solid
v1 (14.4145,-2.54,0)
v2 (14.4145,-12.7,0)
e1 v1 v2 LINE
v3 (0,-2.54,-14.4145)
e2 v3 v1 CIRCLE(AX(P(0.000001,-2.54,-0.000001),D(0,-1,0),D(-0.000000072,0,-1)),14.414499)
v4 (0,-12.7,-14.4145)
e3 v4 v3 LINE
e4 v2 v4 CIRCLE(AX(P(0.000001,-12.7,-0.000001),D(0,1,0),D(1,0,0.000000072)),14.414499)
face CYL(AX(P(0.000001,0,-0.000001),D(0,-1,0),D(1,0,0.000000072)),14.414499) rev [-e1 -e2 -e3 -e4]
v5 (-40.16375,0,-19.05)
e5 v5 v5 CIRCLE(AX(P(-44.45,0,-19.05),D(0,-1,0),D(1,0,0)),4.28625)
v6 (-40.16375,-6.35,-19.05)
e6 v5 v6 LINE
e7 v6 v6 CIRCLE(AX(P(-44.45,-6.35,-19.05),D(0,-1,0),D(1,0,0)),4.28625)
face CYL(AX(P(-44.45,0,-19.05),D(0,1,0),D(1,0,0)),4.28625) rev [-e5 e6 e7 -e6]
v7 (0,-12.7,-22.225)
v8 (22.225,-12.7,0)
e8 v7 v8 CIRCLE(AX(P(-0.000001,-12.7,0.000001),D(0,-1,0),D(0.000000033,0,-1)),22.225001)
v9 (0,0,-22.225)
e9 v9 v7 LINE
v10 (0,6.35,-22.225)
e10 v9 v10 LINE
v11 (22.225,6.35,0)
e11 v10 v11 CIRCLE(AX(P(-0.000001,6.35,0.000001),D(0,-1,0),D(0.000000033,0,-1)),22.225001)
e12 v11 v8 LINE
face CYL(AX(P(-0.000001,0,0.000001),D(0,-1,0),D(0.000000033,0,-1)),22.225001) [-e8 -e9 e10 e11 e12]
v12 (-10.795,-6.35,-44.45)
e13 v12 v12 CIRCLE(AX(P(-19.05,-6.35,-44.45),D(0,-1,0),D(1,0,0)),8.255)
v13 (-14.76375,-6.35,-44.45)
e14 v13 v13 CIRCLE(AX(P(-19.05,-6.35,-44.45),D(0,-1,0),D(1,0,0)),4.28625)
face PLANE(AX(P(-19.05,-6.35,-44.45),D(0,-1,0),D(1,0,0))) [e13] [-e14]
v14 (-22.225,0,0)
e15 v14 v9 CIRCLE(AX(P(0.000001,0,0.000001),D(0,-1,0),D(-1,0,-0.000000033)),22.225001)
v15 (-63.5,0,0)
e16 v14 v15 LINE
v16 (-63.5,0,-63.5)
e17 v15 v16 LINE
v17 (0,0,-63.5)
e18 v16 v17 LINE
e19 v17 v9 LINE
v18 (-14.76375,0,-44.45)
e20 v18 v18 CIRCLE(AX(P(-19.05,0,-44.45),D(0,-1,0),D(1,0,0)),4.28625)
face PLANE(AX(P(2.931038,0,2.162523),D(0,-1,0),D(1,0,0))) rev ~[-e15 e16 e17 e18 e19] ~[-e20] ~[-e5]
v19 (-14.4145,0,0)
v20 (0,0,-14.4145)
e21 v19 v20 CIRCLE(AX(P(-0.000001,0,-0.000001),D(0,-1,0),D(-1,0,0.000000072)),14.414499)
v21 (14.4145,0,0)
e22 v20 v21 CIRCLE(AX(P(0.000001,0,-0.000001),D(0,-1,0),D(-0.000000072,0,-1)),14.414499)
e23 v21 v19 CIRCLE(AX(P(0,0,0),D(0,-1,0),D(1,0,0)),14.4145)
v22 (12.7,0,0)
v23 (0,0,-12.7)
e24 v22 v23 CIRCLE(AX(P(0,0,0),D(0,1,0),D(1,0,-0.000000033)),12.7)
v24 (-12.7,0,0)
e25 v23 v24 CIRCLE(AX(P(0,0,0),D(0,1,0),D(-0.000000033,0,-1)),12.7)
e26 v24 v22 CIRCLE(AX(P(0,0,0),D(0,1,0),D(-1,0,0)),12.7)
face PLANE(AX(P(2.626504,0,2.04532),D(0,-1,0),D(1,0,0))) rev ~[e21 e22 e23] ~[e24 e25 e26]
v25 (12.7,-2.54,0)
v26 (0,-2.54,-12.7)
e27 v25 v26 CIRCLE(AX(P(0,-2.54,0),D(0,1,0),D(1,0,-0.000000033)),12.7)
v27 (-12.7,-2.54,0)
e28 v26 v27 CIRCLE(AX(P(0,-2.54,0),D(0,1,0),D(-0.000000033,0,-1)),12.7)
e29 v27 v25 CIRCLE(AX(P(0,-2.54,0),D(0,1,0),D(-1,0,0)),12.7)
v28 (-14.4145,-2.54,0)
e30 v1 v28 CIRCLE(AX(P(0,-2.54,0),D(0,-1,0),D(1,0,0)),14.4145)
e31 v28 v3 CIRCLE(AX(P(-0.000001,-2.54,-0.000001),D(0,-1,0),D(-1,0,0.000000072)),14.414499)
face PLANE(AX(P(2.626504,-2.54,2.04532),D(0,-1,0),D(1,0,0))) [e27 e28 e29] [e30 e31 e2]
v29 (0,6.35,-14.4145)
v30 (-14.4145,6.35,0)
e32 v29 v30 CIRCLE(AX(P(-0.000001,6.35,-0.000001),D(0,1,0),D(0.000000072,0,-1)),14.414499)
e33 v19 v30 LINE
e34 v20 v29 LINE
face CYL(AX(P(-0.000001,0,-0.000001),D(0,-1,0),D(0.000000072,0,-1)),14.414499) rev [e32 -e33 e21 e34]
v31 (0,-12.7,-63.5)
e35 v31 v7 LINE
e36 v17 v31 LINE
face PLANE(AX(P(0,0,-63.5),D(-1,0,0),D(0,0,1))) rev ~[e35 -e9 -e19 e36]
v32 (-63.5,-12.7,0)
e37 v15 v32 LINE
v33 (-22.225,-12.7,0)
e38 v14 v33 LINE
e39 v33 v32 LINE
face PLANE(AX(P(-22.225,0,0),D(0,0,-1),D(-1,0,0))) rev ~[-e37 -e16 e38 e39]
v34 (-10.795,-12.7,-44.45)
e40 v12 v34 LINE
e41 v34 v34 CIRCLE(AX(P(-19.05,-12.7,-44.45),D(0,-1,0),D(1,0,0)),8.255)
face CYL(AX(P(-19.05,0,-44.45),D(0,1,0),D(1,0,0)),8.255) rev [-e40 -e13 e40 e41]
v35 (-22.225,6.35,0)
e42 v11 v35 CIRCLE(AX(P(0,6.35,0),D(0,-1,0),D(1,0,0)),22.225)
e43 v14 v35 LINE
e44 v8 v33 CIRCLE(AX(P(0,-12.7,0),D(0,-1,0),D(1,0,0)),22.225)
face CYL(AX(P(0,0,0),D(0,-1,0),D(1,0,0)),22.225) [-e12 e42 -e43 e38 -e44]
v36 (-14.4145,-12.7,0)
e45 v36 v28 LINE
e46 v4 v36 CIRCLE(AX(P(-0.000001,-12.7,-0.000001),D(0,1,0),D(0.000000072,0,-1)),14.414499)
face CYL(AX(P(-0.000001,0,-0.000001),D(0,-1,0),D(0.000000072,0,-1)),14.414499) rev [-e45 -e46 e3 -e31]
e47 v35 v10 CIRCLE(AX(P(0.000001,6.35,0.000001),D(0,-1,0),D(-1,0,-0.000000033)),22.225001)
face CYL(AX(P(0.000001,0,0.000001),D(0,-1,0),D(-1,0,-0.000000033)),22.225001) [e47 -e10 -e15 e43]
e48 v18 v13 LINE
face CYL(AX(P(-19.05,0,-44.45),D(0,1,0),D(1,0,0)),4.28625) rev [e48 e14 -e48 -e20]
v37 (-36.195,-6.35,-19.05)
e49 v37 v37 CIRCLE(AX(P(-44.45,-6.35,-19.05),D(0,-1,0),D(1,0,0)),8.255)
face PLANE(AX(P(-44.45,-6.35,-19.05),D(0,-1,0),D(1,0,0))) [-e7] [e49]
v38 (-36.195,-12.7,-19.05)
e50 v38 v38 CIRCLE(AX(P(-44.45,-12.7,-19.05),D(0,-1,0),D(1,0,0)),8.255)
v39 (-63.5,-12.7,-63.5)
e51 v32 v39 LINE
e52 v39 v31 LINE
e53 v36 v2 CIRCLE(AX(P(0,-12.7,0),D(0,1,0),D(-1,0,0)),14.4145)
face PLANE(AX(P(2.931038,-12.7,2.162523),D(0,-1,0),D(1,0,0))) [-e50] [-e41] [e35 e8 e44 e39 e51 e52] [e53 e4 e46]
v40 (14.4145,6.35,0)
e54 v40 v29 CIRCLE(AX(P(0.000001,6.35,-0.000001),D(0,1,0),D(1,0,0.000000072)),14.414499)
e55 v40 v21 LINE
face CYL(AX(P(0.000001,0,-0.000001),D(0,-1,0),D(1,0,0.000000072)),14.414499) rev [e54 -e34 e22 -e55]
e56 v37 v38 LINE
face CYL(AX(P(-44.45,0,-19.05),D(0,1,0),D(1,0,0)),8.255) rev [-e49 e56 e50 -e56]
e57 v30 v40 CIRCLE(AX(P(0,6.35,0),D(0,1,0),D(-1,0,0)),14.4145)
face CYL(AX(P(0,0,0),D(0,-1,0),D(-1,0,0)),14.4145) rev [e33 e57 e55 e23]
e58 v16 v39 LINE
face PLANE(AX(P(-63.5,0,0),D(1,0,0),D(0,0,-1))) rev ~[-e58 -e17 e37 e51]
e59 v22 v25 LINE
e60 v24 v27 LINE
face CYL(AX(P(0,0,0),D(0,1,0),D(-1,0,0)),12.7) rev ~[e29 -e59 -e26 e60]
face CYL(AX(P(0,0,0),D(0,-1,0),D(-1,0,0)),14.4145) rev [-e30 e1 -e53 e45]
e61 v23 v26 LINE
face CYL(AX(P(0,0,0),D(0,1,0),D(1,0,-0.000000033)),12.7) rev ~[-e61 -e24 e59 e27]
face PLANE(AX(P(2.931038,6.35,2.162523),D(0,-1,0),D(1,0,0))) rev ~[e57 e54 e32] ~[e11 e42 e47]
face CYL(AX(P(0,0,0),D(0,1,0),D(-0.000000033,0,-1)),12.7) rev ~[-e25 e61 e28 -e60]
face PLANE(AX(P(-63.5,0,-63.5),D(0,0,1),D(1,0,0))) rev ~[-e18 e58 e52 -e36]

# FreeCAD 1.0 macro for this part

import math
import FreeCAD as App
import Part
import Sketcher

V = App.Vector
Q = App.Units.Quantity

doc = App.newDocument("Part")
body = doc.addObject("PartDesign::Body", "Body")

# Sketch on XZ plane
sketch1 = body.newObject("Sketcher::SketchObject", "Sketch")
sketch1.AttachmentSupport = (doc.getObject("XZ_Plane"), [""])
sketch1.MapMode = "FlatFace"
sketch1.addGeometry(Part.ArcOfCircle(Part.Circle(V(0, 0, 0), V(0, 0, 1), 22), math.radians(-180), math.radians(-90)), False)
sketch1.addGeometry(Part.LineSegment(V(-22, 0, 0), V(-64, 0, 0)), False)
sketch1.addGeometry(Part.LineSegment(V(-64, 0, 0), V(-64, -64, 0)), False)
sketch1.addGeometry(Part.LineSegment(V(-64, -64, 0), V(0, -64, 0)), False)
sketch1.addGeometry(Part.LineSegment(V(0, -64, 0), V(0, -22, 0)), False)
sketch1.addGeometry(Part.Circle(V(-19, -44, 0), V(0, 0, 1), 8), False)
sketch1.addGeometry(Part.Circle(V(-44, -19, 0), V(0, 0, 1), 8), False)
sketch1.addConstraint(Sketcher.Constraint("Coincident", 0, 1, 1, 1))
sketch1.addConstraint(Sketcher.Constraint("Coincident", 1, 2, 2, 1))
sketch1.addConstraint(Sketcher.Constraint("Coincident", 2, 2, 3, 1))
sketch1.addConstraint(Sketcher.Constraint("Coincident", 3, 2, 4, 1))
sketch1.addConstraint(Sketcher.Constraint("Coincident", 4, 2, 0, 2))
sketch1.addConstraint(Sketcher.Constraint("Horizontal", 1))
sketch1.addConstraint(Sketcher.Constraint("Vertical", 2))
sketch1.addConstraint(Sketcher.Constraint("Horizontal", 3))
sketch1.addConstraint(Sketcher.Constraint("Vertical", 4))
sketch1.addConstraint(Sketcher.Constraint("Coincident", 0, 3, -1, 1))
sketch1.addConstraint(Sketcher.Constraint("Equal", 5, 6))
sketch1.addConstraint(Sketcher.Constraint("PointOnObject", 0, 1, -1))
sketch1.addConstraint(Sketcher.Constraint("PointOnObject", 3, 2, -2))
sketch1.addConstraint(Sketcher.Constraint("Equal", 3, 2))
sketch1.addConstraint(Sketcher.Constraint("Diameter", 5, Q("0.65 in")))
sketch1.addConstraint(Sketcher.Constraint("DistanceX", 3, 1, 3, 2, Q("2.5 in")))
sketch1.addConstraint(Sketcher.Constraint("Radius", 0, Q("0.875 in")))
sketch1.addConstraint(Sketcher.Constraint("DistanceX", 6, 3, 5, 3, Q("1 in")))
sketch1.addConstraint(Sketcher.Constraint("DistanceY", 5, 3, 6, 3, Q("1 in")))
sketch1.addConstraint(Sketcher.Constraint("DistanceX", 5, 3, -1, 1, Q("0.75 in")))
sketch1.addConstraint(Sketcher.Constraint("DistanceY", 5, 3, -1, 1, Q("1.75 in")))
pad1 = body.newObject("PartDesign::Pad", "Pad")
pad1.Profile = sketch1
pad1.Length = Q("0.5 in")

# Sketch on XZ plane
sketch2 = body.newObject("Sketcher::SketchObject", "Sketch001")
sketch2.AttachmentSupport = (doc.getObject("XZ_Plane"), [""])
sketch2.MapMode = "FlatFace"
sketch2.addGeometry(Part.Circle(V(-44.5, -19.1, 0), V(0, 0, 1), 8.3), False)
sketch2.addGeometry(Part.Circle(V(-44.5, -19.1, 0), V(0, 0, 1), 4.3), False)
sketch2.addGeometry(Part.Circle(V(-19.1, -44.5, 0), V(0, 0, 1), 8.3), False)
sketch2.addGeometry(Part.Circle(V(-19.1, -44.5, 0), V(0, 0, 1), 4.3), False)
sketch2.addConstraint(Sketcher.Constraint("Coincident", 1, 3, 0, 3))
sketch2.addConstraint(Sketcher.Constraint("Coincident", 3, 3, 2, 3))
sketch2.addConstraint(Sketcher.Constraint("Equal", 0, 2))
sketch2.addConstraint(Sketcher.Constraint("Equal", 1, 3))
sketch2.addConstraint(Sketcher.Constraint("Diameter", 0, Q("0.65 in")))
sketch2.addConstraint(Sketcher.Constraint("DistanceX", 0, 3, 2, 3, Q("1 in")))
sketch2.addConstraint(Sketcher.Constraint("DistanceY", 2, 3, 0, 3, Q("1 in")))
sketch2.addConstraint(Sketcher.Constraint("Diameter", 1, Q("0.3375 in")))
sketch2.addConstraint(Sketcher.Constraint("DistanceX", 0, 3, -1, 1, Q("1.75 in")))
sketch2.addConstraint(Sketcher.Constraint("DistanceY", 0, 3, -1, 1, Q("0.75 in")))
pad2 = body.newObject("PartDesign::Pad", "Pad001")
pad2.Profile = sketch2
pad2.Length = Q("0.25 in")

# Sketch on XZ plane
sketch3 = body.newObject("Sketcher::SketchObject", "Sketch002")
sketch3.AttachmentSupport = (doc.getObject("XZ_Plane"), [""])
sketch3.MapMode = "FlatFace"
sketch3.addGeometry(Part.ArcOfCircle(Part.Circle(V(0, 0, 0), V(0, 0, 1), 22), math.radians(-90), math.radians(0)), False)
sketch3.addGeometry(Part.ArcOfCircle(Part.Circle(V(0, 0, 0), V(0, 0, 1), 22), math.radians(0), math.radians(180)), False)
sketch3.addGeometry(Part.ArcOfCircle(Part.Circle(V(0, 0, 0), V(0, 0, 1), 22), math.radians(-180), math.radians(-90)), False)
sketch3.addGeometry(Part.ArcOfCircle(Part.Circle(V(0, 0, 0), V(0, 0, 1), 14), math.radians(0), math.radians(180)), False)
sketch3.addGeometry(Part.ArcOfCircle(Part.Circle(V(0, 0, 0), V(0, 0, 1), 14), math.radians(-90), math.radians(0)), False)
sketch3.addGeometry(Part.ArcOfCircle(Part.Circle(V(0, 0, 0), V(0, 0, 1), 14), math.radians(180), math.radians(270)), False)
sketch3.addConstraint(Sketcher.Constraint("Tangent", 0, 2, 1, 1))
sketch3.addConstraint(Sketcher.Constraint("Tangent", 1, 2, 2, 1))
sketch3.addConstraint(Sketcher.Constraint("Tangent", 2, 2, 0, 1))
sketch3.addConstraint(Sketcher.Constraint("Tangent", 3, 1, 4, 2))
sketch3.addConstraint(Sketcher.Constraint("Tangent", 4, 1, 5, 2))
sketch3.addConstraint(Sketcher.Constraint("Tangent", 5, 1, 3, 2))
sketch3.addConstraint(Sketcher.Constraint("Coincident", 0, 3, -1, 1))
sketch3.addConstraint(Sketcher.Constraint("Coincident", 3, 3, -1, 1))
sketch3.addConstraint(Sketcher.Constraint("PointOnObject", 0, 2, -1))
sketch3.addConstraint(Sketcher.Constraint("PointOnObject", 1, 2, -1))
sketch3.addConstraint(Sketcher.Constraint("PointOnObject", 2, 2, -2))
sketch3.addConstraint(Sketcher.Constraint("PointOnObject", 3, 1, -1))
sketch3.addConstraint(Sketcher.Constraint("PointOnObject", 4, 1, -2))
sketch3.addConstraint(Sketcher.Constraint("PointOnObject", 5, 1, -1))
sketch3.addConstraint(Sketcher.Constraint("Radius", 0, Q("0.875 in")))
sketch3.addConstraint(Sketcher.Constraint("Radius", 3, Q("0.5675 in")))
pad3 = body.newObject("PartDesign::Pad", "Pad002")
pad3.Profile = sketch3
pad3.Type = "TwoLengths"
pad3.Length = Q("0.5 in")
pad3.Length2 = Q("0.25 in")

# Sketch on XZ plane
sketch4 = body.newObject("Sketcher::SketchObject", "Sketch003")
sketch4.AttachmentSupport = (doc.getObject("XZ_Plane"), [""])
sketch4.MapMode = "FlatFace"
sketch4.addGeometry(Part.ArcOfCircle(Part.Circle(V(0, 0, 0), V(0, 0, 1), 14), math.radians(-90), math.radians(0)), False)
sketch4.addGeometry(Part.ArcOfCircle(Part.Circle(V(0, 0, 0), V(0, 0, 1), 14), math.radians(0), math.radians(180)), False)
sketch4.addGeometry(Part.ArcOfCircle(Part.Circle(V(0, 0, 0), V(0, 0, 1), 14), math.radians(180), math.radians(270)), False)
sketch4.addGeometry(Part.ArcOfCircle(Part.Circle(V(0, 0, 0), V(0, 0, 1), 13), math.radians(0), math.radians(180)), False)
sketch4.addGeometry(Part.ArcOfCircle(Part.Circle(V(0, 0, 0), V(0, 0, 1), 13), math.radians(-90), math.radians(0)), False)
sketch4.addGeometry(Part.ArcOfCircle(Part.Circle(V(0, 0, 0), V(0, 0, 1), 13), math.radians(-180), math.radians(-90)), False)
sketch4.addConstraint(Sketcher.Constraint("Tangent", 0, 2, 1, 1))
sketch4.addConstraint(Sketcher.Constraint("Tangent", 1, 2, 2, 1))
sketch4.addConstraint(Sketcher.Constraint("Tangent", 2, 2, 0, 1))
sketch4.addConstraint(Sketcher.Constraint("Tangent", 3, 1, 4, 2))
sketch4.addConstraint(Sketcher.Constraint("Tangent", 4, 1, 5, 2))
sketch4.addConstraint(Sketcher.Constraint("Tangent", 5, 1, 3, 2))
sketch4.addConstraint(Sketcher.Constraint("Coincident", 0, 3, -1, 1))
sketch4.addConstraint(Sketcher.Constraint("Coincident", 3, 3, -1, 1))
sketch4.addConstraint(Sketcher.Constraint("PointOnObject", 0, 2, -1))
sketch4.addConstraint(Sketcher.Constraint("PointOnObject", 1, 2, -1))
sketch4.addConstraint(Sketcher.Constraint("PointOnObject", 2, 2, -2))
sketch4.addConstraint(Sketcher.Constraint("PointOnObject", 3, 1, -1))
sketch4.addConstraint(Sketcher.Constraint("PointOnObject", 4, 1, -2))
sketch4.addConstraint(Sketcher.Constraint("PointOnObject", 5, 1, -1))
sketch4.addConstraint(Sketcher.Constraint("Radius", 3, Q("0.5 in")))
sketch4.addConstraint(Sketcher.Constraint("Radius", 0, Q("0.5675 in")))
pad4 = body.newObject("PartDesign::Pad", "Pad003")
pad4.Profile = sketch4
pad4.Length = Q("0.1 in")

doc.recompute()
